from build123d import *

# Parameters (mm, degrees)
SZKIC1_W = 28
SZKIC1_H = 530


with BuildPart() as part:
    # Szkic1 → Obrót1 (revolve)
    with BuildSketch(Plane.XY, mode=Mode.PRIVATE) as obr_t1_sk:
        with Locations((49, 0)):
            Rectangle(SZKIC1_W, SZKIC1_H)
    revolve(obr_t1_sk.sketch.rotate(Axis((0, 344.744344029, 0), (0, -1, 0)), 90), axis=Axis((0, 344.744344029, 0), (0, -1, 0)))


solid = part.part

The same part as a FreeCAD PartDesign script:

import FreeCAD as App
import Part
import Sketcher

V = App.Vector


def add_polygon(sketch, points):
    """Adds a closed chain of lines whose ends are joined by coincident constraints."""
    first, n = sketch.GeometryCount, len(points)
    for a, b in zip(points, points[1:] + points[:1]):
        sketch.addGeometry(Part.LineSegment(App.Vector(*a, 0), App.Vector(*b, 0)), False)
    for i in range(n):
        sketch.addConstraint(Sketcher.Constraint("Coincident", first + i, 2, first + (i + 1) % n, 1))

doc = App.newDocument("Part")
body = doc.addObject("PartDesign::Body", "Body")

# Sketch on XY plane
sketch1 = doc.addObject("Sketcher::SketchObject", "Sketch")
body.addObject(sketch1)
sketch1.AttachmentSupport = (doc.XY_Plane, [""])
sketch1.MapMode = "FlatFace"
add_polygon(sketch1, [(35, 265), (35, -265), (63, -265), (63, 265)])  # lines 0-3
sketch1.addConstraint([
    Sketcher.Constraint("Vertical", 0),
    Sketcher.Constraint("Horizontal", 1),
    Sketcher.Constraint("Vertical", 2),
    Sketcher.Constraint("Horizontal", 3),
    Sketcher.Constraint("DistanceX", 1, 1, 1, 2, 28.0),
    Sketcher.Constraint("DistanceY", 0, 2, 0, 1, 530.0),
    Sketcher.Constraint("DistanceX", -1, 1, 0, 2, 35.0),
    Sketcher.Constraint("DistanceY", 0, 2, -1, 1, 265.0),
])
revolution = doc.addObject("PartDesign::Revolution", "Revolution")
body.addObject(revolution)
revolution.Profile = sketch1
revolution.ReferenceAxis = (sketch1, ["V_Axis"])
revolution.Angle = 360

doc.recompute()
